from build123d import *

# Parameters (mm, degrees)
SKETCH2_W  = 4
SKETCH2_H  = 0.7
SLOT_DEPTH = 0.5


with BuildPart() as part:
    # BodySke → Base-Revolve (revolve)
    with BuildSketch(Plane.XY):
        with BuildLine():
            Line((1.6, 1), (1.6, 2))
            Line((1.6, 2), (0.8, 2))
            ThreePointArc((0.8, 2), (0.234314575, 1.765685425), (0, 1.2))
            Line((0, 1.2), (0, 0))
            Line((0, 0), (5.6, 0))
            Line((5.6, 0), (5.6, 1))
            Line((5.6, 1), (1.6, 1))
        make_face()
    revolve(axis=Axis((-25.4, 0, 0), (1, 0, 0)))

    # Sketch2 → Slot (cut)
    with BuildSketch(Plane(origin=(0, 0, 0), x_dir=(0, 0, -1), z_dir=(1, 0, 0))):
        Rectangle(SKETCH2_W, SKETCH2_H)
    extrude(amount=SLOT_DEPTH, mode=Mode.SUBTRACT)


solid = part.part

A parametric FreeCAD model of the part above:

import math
import FreeCAD as App
import Part
import Sketcher


def add_polygon(sketch, points):
    """Adds a closed chain of lines whose ends are joined by coincident constraints."""
    first, n = sketch.GeometryCount, len(points)
    for a, b in zip(points, points[1:] + points[:1]):
        sketch.addGeometry(Part.LineSegment(App.Vector(*a, 0), App.Vector(*b, 0)), False)
    for i in range(n):
        sketch.addConstraint(Sketcher.Constraint("Coincident", first + i, 2, first + (i + 1) % n, 1))

doc = App.newDocument("Part")
body = doc.addObject("PartDesign::Body", "Body")

# Sketch on XY plane
sketch1 = doc.addObject("Sketcher::SketchObject", "Sketch")
body.addObject(sketch1)
sketch1.AttachmentSupport = (doc.XY_Plane, [""])
sketch1.MapMode = "FlatFace"
sketch1.addGeometry([
    Part.LineSegment(App.Vector(1.6, 1, 0), App.Vector(1.6, 2, 0)),  # 0
    Part.LineSegment(App.Vector(1.6, 2, 0), App.Vector(0.8, 2, 0)),  # 1
    Part.ArcOfCircle(Part.Circle(App.Vector(0.8, 1.2, 0), App.Vector(0, 0, 1), 0.8), math.radians(90), math.radians(180)),  # 2
    Part.LineSegment(App.Vector(0, 1.2, 0), App.Vector(0, 0, 0)),  # 3
    Part.LineSegment(App.Vector(0, 0, 0), App.Vector(5.6, 0, 0)),  # 4
    Part.LineSegment(App.Vector(5.6, 0, 0), App.Vector(5.6, 1, 0)),  # 5
    Part.LineSegment(App.Vector(5.6, 1, 0), App.Vector(1.6, 1, 0)),  # 6
], False)
sketch1.addConstraint([
    Sketcher.Constraint("Coincident", 0, 2, 1, 1),
    Sketcher.Constraint("Tangent", 1, 2, 2, 1),
    Sketcher.Constraint("Tangent", 2, 2, 3, 1),
    Sketcher.Constraint("Coincident", 3, 2, 4, 1),
    Sketcher.Constraint("Coincident", 4, 2, 5, 1),
    Sketcher.Constraint("Coincident", 5, 2, 6, 1),
    Sketcher.Constraint("Coincident", 6, 2, 0, 1),
    Sketcher.Constraint("Vertical", 0),
    Sketcher.Constraint("Horizontal", 1),
    Sketcher.Constraint("Vertical", 3),
    Sketcher.Constraint("Horizontal", 4),
    Sketcher.Constraint("Vertical", 5),
    Sketcher.Constraint("Horizontal", 6),
    Sketcher.Constraint("Coincident", 3, 2, -1, 1),
    Sketcher.Constraint("Equal", 0, 5),
    Sketcher.Constraint("Radius", 2, 0.8),
    Sketcher.Constraint("DistanceX", 6, 2, 6, 1, 4.0),
    Sketcher.Constraint("DistanceY", 0, 1, 0, 2, 1.0),
    Sketcher.Constraint("DistanceX", 1, 2, 1, 1, 0.8),
])
revolution = doc.addObject("PartDesign::Revolution", "Revolution")
body.addObject(revolution)
revolution.Profile = sketch1
revolution.ReferenceAxis = (sketch1, ["H_Axis"])
revolution.Angle = 360

# Sketch on YZ plane
sketch2 = doc.addObject("Sketcher::SketchObject", "Sketch001")
body.addObject(sketch2)
sketch2.AttachmentSupport = (doc.YZ_Plane, [""])
sketch2.MapMode = "FlatFace"
add_polygon(sketch2, [(0.3, 2), (-0.3, 2), (-0.3, -2), (0.3, -2)])  # lines 0-3
sketch2.addConstraint([
    Sketcher.Constraint("Horizontal", 0),
    Sketcher.Constraint("Vertical", 1),
    Sketcher.Constraint("Horizontal", 2),
    Sketcher.Constraint("Vertical", 3),
    Sketcher.Constraint("Symmetric", 0, 2, 2, 2, -1, 1),
    Sketcher.Constraint("DistanceY", 1, 2, 1, 1, 4.0),
    Sketcher.Constraint("DistanceX", 0, 2, 0, 1, 0.7),
])
pocket1 = doc.addObject("PartDesign::Pocket", "Pocket")
body.addObject(pocket1)
pocket1.Profile = sketch2
pocket1.Length = 0.5
pocket1.Reversed = True

doc.recompute()
